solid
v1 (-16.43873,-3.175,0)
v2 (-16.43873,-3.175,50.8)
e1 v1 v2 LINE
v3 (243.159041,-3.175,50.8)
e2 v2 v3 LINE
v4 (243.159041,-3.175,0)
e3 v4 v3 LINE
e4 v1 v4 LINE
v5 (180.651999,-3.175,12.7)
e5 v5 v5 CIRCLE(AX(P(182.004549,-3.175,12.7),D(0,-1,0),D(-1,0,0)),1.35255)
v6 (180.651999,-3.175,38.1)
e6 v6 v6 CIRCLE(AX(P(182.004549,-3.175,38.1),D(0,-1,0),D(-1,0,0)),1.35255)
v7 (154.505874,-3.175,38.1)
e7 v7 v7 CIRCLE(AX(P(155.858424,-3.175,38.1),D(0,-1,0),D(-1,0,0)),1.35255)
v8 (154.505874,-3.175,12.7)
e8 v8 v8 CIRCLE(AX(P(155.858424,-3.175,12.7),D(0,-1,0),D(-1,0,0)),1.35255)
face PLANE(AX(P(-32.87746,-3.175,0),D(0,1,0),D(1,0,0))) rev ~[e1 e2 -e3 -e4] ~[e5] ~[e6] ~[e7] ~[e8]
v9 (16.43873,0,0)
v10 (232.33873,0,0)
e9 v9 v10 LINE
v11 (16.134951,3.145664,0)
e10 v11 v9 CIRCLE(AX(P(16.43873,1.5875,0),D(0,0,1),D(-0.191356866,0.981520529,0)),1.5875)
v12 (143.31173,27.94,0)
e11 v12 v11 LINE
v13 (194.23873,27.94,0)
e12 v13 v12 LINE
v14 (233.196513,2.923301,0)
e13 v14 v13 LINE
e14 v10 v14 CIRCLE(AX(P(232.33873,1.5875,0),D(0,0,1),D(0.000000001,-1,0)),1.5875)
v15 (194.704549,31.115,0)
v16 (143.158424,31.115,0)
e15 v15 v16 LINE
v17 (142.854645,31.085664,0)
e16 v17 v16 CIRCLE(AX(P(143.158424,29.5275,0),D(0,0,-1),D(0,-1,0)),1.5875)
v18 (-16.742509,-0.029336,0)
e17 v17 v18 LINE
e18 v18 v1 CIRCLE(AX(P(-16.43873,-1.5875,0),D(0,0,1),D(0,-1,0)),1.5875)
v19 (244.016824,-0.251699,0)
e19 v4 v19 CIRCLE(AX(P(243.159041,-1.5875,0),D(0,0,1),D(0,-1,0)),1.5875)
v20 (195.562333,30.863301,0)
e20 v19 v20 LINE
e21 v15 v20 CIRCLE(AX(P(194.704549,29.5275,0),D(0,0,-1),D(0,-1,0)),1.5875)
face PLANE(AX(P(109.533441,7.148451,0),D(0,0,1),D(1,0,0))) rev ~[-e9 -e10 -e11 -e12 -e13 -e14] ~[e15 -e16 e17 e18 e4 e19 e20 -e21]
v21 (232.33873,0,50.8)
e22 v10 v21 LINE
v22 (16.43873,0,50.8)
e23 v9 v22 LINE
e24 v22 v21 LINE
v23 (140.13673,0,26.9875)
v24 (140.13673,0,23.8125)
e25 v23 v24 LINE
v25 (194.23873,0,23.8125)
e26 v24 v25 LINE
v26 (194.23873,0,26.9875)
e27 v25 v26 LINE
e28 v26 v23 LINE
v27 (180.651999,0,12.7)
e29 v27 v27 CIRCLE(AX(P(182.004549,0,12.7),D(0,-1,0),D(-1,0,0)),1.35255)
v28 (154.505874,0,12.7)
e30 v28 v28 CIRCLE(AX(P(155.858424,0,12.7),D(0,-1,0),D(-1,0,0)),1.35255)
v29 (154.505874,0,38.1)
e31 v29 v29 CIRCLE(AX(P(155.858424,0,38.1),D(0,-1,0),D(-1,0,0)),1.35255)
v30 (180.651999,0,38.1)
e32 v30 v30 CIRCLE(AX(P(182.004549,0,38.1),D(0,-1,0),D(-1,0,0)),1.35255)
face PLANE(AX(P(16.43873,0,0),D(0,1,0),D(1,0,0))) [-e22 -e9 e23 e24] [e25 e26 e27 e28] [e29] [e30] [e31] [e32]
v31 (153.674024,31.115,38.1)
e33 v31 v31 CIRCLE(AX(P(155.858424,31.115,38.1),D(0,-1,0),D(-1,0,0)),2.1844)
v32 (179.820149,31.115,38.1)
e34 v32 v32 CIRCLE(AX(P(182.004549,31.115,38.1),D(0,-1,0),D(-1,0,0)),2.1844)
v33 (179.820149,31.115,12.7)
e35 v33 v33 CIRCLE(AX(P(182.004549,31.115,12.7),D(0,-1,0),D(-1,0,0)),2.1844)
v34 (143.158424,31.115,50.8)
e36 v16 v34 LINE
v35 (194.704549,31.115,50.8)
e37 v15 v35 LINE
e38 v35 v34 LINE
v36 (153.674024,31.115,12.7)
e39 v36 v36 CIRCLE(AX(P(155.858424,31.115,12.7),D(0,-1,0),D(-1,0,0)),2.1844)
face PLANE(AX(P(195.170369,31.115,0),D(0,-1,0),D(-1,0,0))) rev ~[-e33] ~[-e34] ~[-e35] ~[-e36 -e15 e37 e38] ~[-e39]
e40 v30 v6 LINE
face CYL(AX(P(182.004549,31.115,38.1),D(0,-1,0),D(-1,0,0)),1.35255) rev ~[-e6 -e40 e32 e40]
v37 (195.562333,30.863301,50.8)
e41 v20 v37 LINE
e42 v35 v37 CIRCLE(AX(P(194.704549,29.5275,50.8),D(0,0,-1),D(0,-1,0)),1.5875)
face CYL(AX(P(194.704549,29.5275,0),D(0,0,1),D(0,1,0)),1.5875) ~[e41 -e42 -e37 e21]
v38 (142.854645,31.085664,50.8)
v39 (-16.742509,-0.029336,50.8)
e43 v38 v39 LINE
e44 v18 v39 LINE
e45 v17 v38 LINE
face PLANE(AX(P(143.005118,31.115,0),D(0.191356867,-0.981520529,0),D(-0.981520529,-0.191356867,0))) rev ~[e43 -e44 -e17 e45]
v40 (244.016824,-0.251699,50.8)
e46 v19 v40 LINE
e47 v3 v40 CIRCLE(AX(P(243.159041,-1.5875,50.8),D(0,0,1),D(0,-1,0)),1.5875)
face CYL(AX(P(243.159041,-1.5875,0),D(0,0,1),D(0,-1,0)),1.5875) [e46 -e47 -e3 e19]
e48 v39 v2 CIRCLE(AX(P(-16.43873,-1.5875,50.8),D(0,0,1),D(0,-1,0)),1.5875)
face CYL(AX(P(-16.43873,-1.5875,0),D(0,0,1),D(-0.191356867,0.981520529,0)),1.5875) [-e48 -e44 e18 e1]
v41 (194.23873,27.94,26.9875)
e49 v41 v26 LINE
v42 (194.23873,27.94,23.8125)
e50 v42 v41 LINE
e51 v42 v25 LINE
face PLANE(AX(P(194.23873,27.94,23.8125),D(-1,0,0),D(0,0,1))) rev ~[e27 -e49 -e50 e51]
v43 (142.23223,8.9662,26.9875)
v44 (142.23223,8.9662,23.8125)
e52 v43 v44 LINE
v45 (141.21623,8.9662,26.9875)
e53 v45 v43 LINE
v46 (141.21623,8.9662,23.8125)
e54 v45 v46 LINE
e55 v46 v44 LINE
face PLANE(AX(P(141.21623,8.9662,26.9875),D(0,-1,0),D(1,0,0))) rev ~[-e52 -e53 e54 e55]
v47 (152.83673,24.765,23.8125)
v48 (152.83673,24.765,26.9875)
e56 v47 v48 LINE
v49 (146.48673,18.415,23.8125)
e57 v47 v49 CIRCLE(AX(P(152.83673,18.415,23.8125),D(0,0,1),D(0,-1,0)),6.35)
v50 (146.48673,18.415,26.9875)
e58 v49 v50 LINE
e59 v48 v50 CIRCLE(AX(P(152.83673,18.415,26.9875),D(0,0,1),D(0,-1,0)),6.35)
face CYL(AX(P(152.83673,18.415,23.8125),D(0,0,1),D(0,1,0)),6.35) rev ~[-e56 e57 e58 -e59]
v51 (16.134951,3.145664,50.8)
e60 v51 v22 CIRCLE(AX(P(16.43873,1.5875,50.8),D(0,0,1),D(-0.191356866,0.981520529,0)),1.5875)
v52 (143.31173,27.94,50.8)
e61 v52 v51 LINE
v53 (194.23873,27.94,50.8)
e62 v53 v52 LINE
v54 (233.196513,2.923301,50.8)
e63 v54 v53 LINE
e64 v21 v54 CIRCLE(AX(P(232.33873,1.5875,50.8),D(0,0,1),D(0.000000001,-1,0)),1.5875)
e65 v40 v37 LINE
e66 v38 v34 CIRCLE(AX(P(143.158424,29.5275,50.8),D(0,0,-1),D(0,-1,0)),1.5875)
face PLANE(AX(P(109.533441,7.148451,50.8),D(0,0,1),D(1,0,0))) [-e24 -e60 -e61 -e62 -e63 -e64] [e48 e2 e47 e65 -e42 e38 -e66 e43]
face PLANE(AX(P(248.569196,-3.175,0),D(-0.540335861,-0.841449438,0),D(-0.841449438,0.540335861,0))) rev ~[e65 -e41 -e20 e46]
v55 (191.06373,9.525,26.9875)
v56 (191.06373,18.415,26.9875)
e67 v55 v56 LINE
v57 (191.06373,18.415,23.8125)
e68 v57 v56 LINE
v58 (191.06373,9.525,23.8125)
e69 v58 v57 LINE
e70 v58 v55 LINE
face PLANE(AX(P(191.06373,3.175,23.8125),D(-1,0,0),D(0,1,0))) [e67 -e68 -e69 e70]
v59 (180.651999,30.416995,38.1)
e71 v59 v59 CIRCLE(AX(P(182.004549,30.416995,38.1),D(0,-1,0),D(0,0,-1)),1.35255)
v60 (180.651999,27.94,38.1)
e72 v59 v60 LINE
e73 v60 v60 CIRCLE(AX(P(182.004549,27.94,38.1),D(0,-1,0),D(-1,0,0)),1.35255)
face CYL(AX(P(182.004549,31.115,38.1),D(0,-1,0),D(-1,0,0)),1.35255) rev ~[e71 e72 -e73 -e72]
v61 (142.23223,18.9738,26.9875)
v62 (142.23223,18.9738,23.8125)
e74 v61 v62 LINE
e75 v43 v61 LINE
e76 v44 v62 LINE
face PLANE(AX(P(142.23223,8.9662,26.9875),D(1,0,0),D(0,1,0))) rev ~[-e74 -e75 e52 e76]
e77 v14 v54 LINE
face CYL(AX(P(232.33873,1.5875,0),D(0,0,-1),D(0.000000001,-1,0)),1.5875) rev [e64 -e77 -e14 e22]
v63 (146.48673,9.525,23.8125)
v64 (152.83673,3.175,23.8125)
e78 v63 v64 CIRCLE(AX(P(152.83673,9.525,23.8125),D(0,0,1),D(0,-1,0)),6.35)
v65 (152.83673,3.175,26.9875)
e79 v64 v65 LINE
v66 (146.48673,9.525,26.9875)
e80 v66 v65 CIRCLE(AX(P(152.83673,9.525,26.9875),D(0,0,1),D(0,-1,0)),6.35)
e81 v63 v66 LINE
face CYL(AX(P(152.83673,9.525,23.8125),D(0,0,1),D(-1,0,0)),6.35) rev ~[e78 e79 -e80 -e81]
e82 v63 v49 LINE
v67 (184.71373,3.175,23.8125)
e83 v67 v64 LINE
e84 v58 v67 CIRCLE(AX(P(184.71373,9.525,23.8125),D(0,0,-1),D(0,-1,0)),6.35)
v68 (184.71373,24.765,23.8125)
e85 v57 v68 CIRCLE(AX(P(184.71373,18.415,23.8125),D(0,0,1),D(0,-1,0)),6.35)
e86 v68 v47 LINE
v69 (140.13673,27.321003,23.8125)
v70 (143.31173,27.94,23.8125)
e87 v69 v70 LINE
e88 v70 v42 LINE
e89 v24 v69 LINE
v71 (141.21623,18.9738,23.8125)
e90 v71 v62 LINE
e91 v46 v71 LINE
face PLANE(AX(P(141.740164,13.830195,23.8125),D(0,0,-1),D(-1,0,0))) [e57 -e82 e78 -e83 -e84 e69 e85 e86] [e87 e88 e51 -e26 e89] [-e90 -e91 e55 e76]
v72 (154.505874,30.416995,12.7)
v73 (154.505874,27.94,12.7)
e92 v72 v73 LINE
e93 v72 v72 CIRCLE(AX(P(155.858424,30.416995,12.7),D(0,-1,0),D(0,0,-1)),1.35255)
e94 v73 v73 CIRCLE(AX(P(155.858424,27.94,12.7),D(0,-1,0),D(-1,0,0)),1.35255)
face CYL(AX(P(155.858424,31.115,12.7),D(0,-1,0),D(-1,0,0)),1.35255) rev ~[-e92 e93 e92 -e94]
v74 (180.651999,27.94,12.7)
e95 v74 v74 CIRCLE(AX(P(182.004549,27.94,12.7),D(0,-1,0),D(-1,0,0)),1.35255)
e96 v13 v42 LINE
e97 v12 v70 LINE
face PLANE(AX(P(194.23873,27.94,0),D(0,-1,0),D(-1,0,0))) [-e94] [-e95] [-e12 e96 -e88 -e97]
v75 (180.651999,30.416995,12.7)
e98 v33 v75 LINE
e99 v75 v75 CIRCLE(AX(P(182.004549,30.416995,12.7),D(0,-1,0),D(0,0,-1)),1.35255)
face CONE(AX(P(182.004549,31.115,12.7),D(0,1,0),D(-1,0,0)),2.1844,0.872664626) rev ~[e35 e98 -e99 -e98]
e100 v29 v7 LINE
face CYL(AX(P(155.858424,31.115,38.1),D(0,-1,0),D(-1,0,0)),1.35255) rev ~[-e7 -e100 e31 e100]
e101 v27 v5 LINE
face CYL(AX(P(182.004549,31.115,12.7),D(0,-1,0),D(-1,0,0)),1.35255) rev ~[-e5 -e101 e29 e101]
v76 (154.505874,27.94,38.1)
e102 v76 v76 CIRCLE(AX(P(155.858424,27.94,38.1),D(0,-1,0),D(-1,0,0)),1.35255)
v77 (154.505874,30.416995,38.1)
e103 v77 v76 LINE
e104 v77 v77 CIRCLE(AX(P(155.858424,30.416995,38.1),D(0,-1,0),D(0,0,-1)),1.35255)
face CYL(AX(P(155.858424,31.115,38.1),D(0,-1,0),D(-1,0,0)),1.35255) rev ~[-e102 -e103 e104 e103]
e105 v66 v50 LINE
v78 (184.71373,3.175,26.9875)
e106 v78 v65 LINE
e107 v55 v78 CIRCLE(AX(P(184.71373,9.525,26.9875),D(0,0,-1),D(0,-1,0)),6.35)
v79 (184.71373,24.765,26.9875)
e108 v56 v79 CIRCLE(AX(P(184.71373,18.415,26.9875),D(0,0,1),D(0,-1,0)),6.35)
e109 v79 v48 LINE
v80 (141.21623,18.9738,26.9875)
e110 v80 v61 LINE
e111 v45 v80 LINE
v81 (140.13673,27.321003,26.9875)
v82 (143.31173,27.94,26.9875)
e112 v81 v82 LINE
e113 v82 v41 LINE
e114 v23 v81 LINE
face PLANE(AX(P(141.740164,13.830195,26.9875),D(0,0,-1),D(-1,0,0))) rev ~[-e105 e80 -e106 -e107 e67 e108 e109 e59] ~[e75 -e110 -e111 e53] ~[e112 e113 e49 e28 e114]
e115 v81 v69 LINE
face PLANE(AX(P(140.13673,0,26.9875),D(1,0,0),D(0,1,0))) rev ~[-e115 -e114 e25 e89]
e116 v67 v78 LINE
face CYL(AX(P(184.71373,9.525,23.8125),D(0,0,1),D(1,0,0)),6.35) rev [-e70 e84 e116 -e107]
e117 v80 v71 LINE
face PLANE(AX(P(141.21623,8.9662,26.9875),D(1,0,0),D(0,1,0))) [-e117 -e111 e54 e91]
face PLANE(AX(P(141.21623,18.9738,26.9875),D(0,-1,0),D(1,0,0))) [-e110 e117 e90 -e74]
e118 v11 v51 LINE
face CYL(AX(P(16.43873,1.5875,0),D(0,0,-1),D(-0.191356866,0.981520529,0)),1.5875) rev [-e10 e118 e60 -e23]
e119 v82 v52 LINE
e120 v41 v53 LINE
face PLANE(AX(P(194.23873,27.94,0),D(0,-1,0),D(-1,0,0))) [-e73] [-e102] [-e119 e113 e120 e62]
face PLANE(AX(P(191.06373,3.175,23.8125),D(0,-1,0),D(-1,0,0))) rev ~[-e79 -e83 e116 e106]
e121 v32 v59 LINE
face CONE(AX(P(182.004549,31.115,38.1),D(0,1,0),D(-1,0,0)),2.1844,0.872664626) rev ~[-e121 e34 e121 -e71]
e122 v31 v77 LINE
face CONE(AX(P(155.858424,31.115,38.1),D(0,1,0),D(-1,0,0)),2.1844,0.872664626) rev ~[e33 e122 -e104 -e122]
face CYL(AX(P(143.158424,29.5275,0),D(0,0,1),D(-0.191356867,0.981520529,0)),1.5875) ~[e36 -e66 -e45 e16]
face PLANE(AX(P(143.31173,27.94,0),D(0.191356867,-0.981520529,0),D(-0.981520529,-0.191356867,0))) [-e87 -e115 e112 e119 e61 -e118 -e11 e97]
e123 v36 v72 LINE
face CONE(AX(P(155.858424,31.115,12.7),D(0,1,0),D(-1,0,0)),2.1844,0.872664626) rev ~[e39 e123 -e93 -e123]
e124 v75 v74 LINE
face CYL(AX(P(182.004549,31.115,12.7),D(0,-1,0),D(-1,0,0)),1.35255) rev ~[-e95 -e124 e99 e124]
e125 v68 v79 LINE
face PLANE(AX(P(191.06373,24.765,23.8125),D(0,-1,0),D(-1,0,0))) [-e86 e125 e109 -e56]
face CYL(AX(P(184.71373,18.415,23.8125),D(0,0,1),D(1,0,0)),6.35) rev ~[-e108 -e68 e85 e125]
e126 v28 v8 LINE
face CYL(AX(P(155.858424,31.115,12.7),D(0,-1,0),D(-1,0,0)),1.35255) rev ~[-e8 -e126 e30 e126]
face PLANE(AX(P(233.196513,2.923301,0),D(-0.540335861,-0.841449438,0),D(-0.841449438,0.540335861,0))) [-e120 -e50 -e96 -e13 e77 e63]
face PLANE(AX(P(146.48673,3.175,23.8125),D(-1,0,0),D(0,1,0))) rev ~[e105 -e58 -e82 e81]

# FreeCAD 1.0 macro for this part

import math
import FreeCAD as App
import Part
import Sketcher
Q = App.Units.Quantity


def edges_at(feature, points):
    """Names of the edges that pass closest to the given points."""
    edges = feature.Shape.Edges
    near = lambda p: min(range(len(edges)), key=lambda i: edges[i].distToShape(Part.Vertex(*p))[0])
    return sorted({f"Edge{near(p) + 1}" for p in points})


def add_polygon(sketch, points):
    """Adds a closed chain of lines whose ends are joined by coincident constraints."""
    first, n = sketch.GeometryCount, len(points)
    for a, b in zip(points, points[1:] + points[:1]):
        sketch.addGeometry(Part.LineSegment(App.Vector(*a, 0), App.Vector(*b, 0)), False)
    for i in range(n):
        sketch.addConstraint(Sketcher.Constraint("Coincident", first + i, 2, first + (i + 1) % n, 1))

doc = App.newDocument("Part")
body = doc.addObject("PartDesign::Body", "Body")

# Sketch on XY plane
sketch1 = body.newObject("Sketcher::SketchObject", "Sketch")
sketch1.AttachmentSupport = (doc.getObject("XY_Plane"), [""])
sketch1.MapMode = "FlatFace"
add_polygon(sketch1, [(143, 31.1), (-32.9, -3.2), (248.6, -3.2), (195.2, 31.1)])  # lines 0-3
sketch1.addGeometry(Part.LineSegment(App.Vector(232.3, 0, 0), App.Vector(16.4, 0, 0)), False)  # 4
sketch1.addGeometry(Part.ArcOfCircle(Part.Circle(App.Vector(16.4, 1.6, 0), App.Vector(0, 0, 1), 1.6), math.radians(101), math.radians(270)), False)  # 5
sketch1.addGeometry(Part.LineSegment(App.Vector(16.1, 3.1, 0), App.Vector(143.3, 27.9, 0)), False)  # 6
sketch1.addGeometry(Part.LineSegment(App.Vector(143.3, 27.9, 0), App.Vector(194.2, 27.9, 0)), False)  # 7
sketch1.addGeometry(Part.LineSegment(App.Vector(194.2, 27.9, 0), App.Vector(233.2, 2.9, 0)), False)  # 8
sketch1.addGeometry(Part.ArcOfCircle(Part.Circle(App.Vector(232.3, 1.6, 0), App.Vector(0, 0, 1), 1.6), math.radians(-90), math.radians(57)), False)  # 9
sketch1.addConstraint(Sketcher.Constraint("Tangent", 4, 2, 5, 2))
sketch1.addConstraint(Sketcher.Constraint("Tangent", 5, 1, 6, 1))
sketch1.addConstraint(Sketcher.Constraint("Coincident", 6, 2, 7, 1))
sketch1.addConstraint(Sketcher.Constraint("Coincident", 7, 2, 8, 1))
sketch1.addConstraint(Sketcher.Constraint("Tangent", 8, 2, 9, 2))
sketch1.addConstraint(Sketcher.Constraint("Tangent", 9, 1, 4, 1))
sketch1.addConstraint(Sketcher.Constraint("Horizontal", 1))
sketch1.addConstraint(Sketcher.Constraint("Horizontal", 3))
sketch1.addConstraint(Sketcher.Constraint("Horizontal", 4))
sketch1.addConstraint(Sketcher.Constraint("Horizontal", 7))
sketch1.addConstraint(Sketcher.Constraint("Equal", 5, 9))
sketch1.addConstraint(Sketcher.Constraint("PointOnObject", 4, 2, -1))
sketch1.addConstraint(Sketcher.Constraint("Parallel", 0, 6))
sketch1.addConstraint(Sketcher.Constraint("Parallel", 2, 8))
sketch1.addConstraint(Sketcher.Constraint("DistanceX", 4, 2, 4, 1, Q("8.5 in")))
sketch1.addConstraint(Sketcher.Constraint("Radius", 5, Q("0.0625 in")))
sketch1.addConstraint(Sketcher.Constraint("DistanceY", -1, 1, 6, 2, Q("1.1 in")))
sketch1.addConstraint(Sketcher.Constraint("DistanceX", 7, 2, 9, 3, Q("1.5 in")))
sketch1.addConstraint(Sketcher.Constraint("DistanceX", 7, 1, 7, 2, Q("2.005 in")))
sketch1.addConstraint(Sketcher.Constraint("DistanceY", 1, 2, 2, 2, Q("1.35 in")))
sketch1.addConstraint(Sketcher.Constraint("DistanceY", 0, 2, -1, 1, Q("0.125 in")))
sketch1.addConstraint(Sketcher.Constraint("DistanceX", 3, 2, 3, 1, 52.165251))
sketch1.addConstraint(Sketcher.Constraint("DistanceX", -1, 1, 5, 3, 16.43873))
sketch1.addConstraint(Sketcher.Constraint("DistanceX", 0, 2, -1, 1, 32.87746))
pad1 = body.newObject("PartDesign::Pad", "Pad")
pad1.Profile = sketch1
pad1.Length = Q("2 in")
doc.recompute()

fillet = body.newObject("PartDesign::Fillet", "Fillet")
fillet.Base = (pad1, edges_at(pad1, [
    (195.17, 31.115, 25.4),
    (248.569, -3.175, 25.4),
    (-32.877, -3.175, 25.4),
    (143.005, 31.115, 25.4),
]))
fillet.Radius = Q("0.0625 in")

# Sketch on XZ plane
sketch2 = body.newObject("Sketcher::SketchObject", "Sketch001")
sketch2.AttachmentSupport = (doc.getObject("XZ_Plane"), [""])
sketch2.MapMode = "FlatFace"
sketch2.AttachmentOffset = App.Placement(App.Vector(0, 0, -1.1 * 25.4), App.Rotation())
add_polygon(sketch2, [(143.3, 27), (143.3, 23.8), (194.2, 23.8), (194.2, 27)])  # lines 0-3
sketch2.addConstraint(Sketcher.Constraint("Vertical", 0))
sketch2.addConstraint(Sketcher.Constraint("Horizontal", 1))
sketch2.addConstraint(Sketcher.Constraint("Vertical", 2))
sketch2.addConstraint(Sketcher.Constraint("Horizontal", 3))
sketch2.addConstraint(Sketcher.Constraint("DistanceX", 1, 1, 1, 2, Q("2.005 in")))
sketch2.addConstraint(Sketcher.Constraint("DistanceY", 0, 2, 0, 1, Q("0.125 in")))
sketch2.addConstraint(Sketcher.Constraint("DistanceY", -1, 1, 0, 2, Q("0.9375 in")))
sketch2.addConstraint(Sketcher.Constraint("DistanceX", -1, 1, 0, 2, 143.31173))
pad2 = body.newObject("PartDesign::Pad", "Pad001")
pad2.Profile = sketch2
pad2.Length = Q("1.1 in")

# Sketch on XY plane
sketch3 = body.newObject("Sketcher::SketchObject", "Sketch002")
sketch3.AttachmentSupport = (doc.getObject("XY_Plane"), [""])
sketch3.MapMode = "FlatFace"
sketch3.AttachmentOffset = App.Placement(App.Vector(0, 0, 0.9375 * 25.4), App.Rotation())
add_polygon(sketch3, [(191, 25), (191, 3), (146, 3), (146, 25)])  # lines 0-3
sketch3.addConstraint(Sketcher.Constraint("Vertical", 0))
sketch3.addConstraint(Sketcher.Constraint("Horizontal", 1))
sketch3.addConstraint(Sketcher.Constraint("Vertical", 2))
sketch3.addConstraint(Sketcher.Constraint("Horizontal", 3))
sketch3.addConstraint(Sketcher.Constraint("DistanceY", 0, 2, 0, 1, Q("0.85 in")))
sketch3.addConstraint(Sketcher.Constraint("DistanceX", 1, 2, 1, 1, Q("1.755 in")))
sketch3.addConstraint(Sketcher.Constraint("DistanceY", -1, 1, 0, 2, Q("0.125 in")))
sketch3.addConstraint(Sketcher.Constraint("DistanceX", -1, 1, 0, 2, 191.06373))
pocket1 = body.newObject("PartDesign::Pocket", "Pocket")
pocket1.Profile = sketch3
pocket1.Length = Q("0.125 in")
pocket1.Reversed = True
doc.recompute()

fillet2 = body.newObject("PartDesign::Fillet", "Fillet001")
fillet2.Base = (pocket1, edges_at(pocket1, [
    (191.064, 24.765, 25.4),
    (146.487, 24.765, 25.4),
    (146.487, 3.175, 25.4),
    (191.064, 3.175, 25.4),
]))
fillet2.Radius = Q("0.25 in")

# Sketch on XY plane
sketch4 = body.newObject("Sketcher::SketchObject", "Sketch003")
sketch4.AttachmentSupport = (doc.getObject("XY_Plane"), [""])
sketch4.MapMode = "FlatFace"
sketch4.AttachmentOffset = App.Placement(App.Vector(0, 0, 1.0625 * 25.4), App.Rotation())
add_polygon(sketch4, [(140.1, 0), (143.3, 0), (143.3, 27.9), (140.1, 27.3)])  # lines 0-3
add_polygon(sketch4, [(141.2, 9), (141.2, 19), (142.2, 19), (142.2, 9)])  # lines 4-7
sketch4.addConstraint(Sketcher.Constraint("Horizontal", 0))
sketch4.addConstraint(Sketcher.Constraint("Vertical", 1))
sketch4.addConstraint(Sketcher.Constraint("Vertical", 3))
sketch4.addConstraint(Sketcher.Constraint("Vertical", 4))
sketch4.addConstraint(Sketcher.Constraint("Horizontal", 5))
sketch4.addConstraint(Sketcher.Constraint("Vertical", 6))
sketch4.addConstraint(Sketcher.Constraint("Horizontal", 7))
sketch4.addConstraint(Sketcher.Constraint("PointOnObject", 0, 2, -1))
sketch4.addConstraint(Sketcher.Constraint("DistanceY", 1, 1, 1, 2, Q("1.1 in")))
sketch4.addConstraint(Sketcher.Constraint("DistanceX", 5, 1, 5, 2, Q("0.04 in")))
sketch4.addConstraint(Sketcher.Constraint("DistanceX", 0, 1, 0, 2, Q("0.125 in")))
sketch4.addConstraint(Sketcher.Constraint("DistanceY", 4, 1, 4, 2, Q("0.394 in")))
sketch4.addConstraint(Sketcher.Constraint("DistanceY", -1, 1, 4, 2, Q("0.747 in")))
sketch4.addConstraint(Sketcher.Constraint("DistanceX", 2, 2, 4, 2, Q("0.0425 in")))
sketch4.addConstraint(Sketcher.Constraint("DistanceY", 3, 2, 3, 1, 27.321003))
sketch4.addConstraint(Sketcher.Constraint("DistanceX", -1, 1, 0, 2, 143.31173))
pad3 = body.newObject("PartDesign::Pad", "Pad002")
pad3.Profile = sketch4
pad3.Length = Q("0.125 in")
pad3.Reversed = True

# Sketch on XZ plane
sketch5 = body.newObject("Sketcher::SketchObject", "Sketch004")
sketch5.AttachmentSupport = (doc.getObject("XZ_Plane"), [""])
sketch5.MapMode = "FlatFace"
sketch5.AttachmentOffset = App.Placement(App.Vector(0, 0, -1.225 * 25.4), App.Rotation())
sketch5.addGeometry(Part.Circle(App.Vector(155.9, 12.7, 0), App.Vector(0, 0, 1), 1.4), False)
sketch5.addGeometry(Part.Circle(App.Vector(182, 12.7, 0), App.Vector(0, 0, 1), 1.4), False)
sketch5.addGeometry(Part.Circle(App.Vector(182, 38.1, 0), App.Vector(0, 0, 1), 1.4), False)
sketch5.addGeometry(Part.Circle(App.Vector(155.9, 38.1, 0), App.Vector(0, 0, 1), 1.4), False)
sketch5.addConstraint(Sketcher.Constraint("Equal", 0, 1))
sketch5.addConstraint(Sketcher.Constraint("Equal", 1, 2))
sketch5.addConstraint(Sketcher.Constraint("Equal", 2, 3))
sketch5.addConstraint(Sketcher.Constraint("Horizontal", 0, 3, 1, 3))
sketch5.addConstraint(Sketcher.Constraint("Horizontal", 2, 3, 3, 3))
sketch5.addConstraint(Sketcher.Constraint("Vertical", 1, 3, 2, 3))
sketch5.addConstraint(Sketcher.Constraint("Vertical", 0, 3, 3, 3))
sketch5.addConstraint(Sketcher.Constraint("DistanceY", 1, 3, 2, 3, Q("1 in")))
sketch5.addConstraint(Sketcher.Constraint("Diameter", 0, Q("0.1065 in")))
sketch5.addConstraint(Sketcher.Constraint("DistanceY", -1, 1, 0, 3, Q("0.5 in")))
sketch5.addConstraint(Sketcher.Constraint("DistanceX", -1, 1, 1, 3, 182.004549))
sketch5.addConstraint(Sketcher.Constraint("DistanceX", -1, 1, 0, 3, 155.858424))
doc.recompute()
hole = body.newObject("PartDesign::Hole", "Hole")
hole.Profile = sketch5
hole.ThreadType = "None"
hole.Diameter = Q("0.1065 in")
hole.DepthType = "ThroughAll"
hole.HoleCutType = "Countersink"
hole.HoleCutDiameter = Q("0.172 in")
hole.HoleCutCountersinkAngle = 100
hole.Reversed = True

doc.recompute()
